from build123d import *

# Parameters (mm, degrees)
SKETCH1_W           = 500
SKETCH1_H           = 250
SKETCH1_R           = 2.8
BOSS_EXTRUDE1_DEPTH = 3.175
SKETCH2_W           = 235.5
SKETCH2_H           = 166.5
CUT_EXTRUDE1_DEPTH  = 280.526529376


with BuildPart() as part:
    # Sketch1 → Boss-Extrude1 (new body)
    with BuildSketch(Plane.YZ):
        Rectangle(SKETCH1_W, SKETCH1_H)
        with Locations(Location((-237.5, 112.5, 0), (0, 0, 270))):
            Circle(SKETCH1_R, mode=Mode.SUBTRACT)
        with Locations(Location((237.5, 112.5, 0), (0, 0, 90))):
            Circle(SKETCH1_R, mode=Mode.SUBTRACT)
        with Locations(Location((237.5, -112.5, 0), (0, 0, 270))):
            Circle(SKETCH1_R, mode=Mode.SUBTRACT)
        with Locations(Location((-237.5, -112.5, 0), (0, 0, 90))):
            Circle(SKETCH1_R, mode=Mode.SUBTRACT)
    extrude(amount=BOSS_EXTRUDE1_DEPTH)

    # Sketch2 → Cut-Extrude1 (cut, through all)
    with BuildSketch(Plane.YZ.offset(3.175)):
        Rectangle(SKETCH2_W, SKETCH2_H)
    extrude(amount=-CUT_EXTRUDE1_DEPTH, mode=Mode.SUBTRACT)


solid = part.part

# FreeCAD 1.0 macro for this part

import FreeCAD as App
import Part
import Sketcher
Q = App.Units.Quantity

doc = App.newDocument("Part")
body = doc.addObject("PartDesign::Body", "Body")

# Sketch on YZ plane
sketch1 = doc.addObject("Sketcher::SketchObject", "Sketch")
body.addObject(sketch1)
sketch1.AttachmentSupport = (doc.YZ_Plane, [""])
sketch1.MapMode = "FlatFace"
sketch1.addGeometry([
    Part.LineSegment(App.Vector(-250, 125, 0), App.Vector(-250, -125, 0)),  # 0
    Part.LineSegment(App.Vector(-250, -125, 0), App.Vector(250, -125, 0)),  # 1
    Part.LineSegment(App.Vector(250, -125, 0), App.Vector(250, 125, 0)),  # 2
    Part.LineSegment(App.Vector(250, 125, 0), App.Vector(-250, 125, 0)),  # 3
    Part.Circle(App.Vector(-237.5, -112.5, 0), App.Vector(0, 0, 1), 2.8),  # 4
    Part.Circle(App.Vector(237.5, -112.5, 0), App.Vector(0, 0, 1), 2.8),  # 5
    Part.Circle(App.Vector(-237.5, 112.5, 0), App.Vector(0, 0, 1), 2.8),  # 6
    Part.Circle(App.Vector(237.5, 112.5, 0), App.Vector(0, 0, 1), 2.8),  # 7
], False)
sketch1.addConstraint([
    Sketcher.Constraint("Coincident", 0, 2, 1, 1),
    Sketcher.Constraint("Coincident", 1, 2, 2, 1),
    Sketcher.Constraint("Coincident", 2, 2, 3, 1),
    Sketcher.Constraint("Coincident", 3, 2, 0, 1),
    Sketcher.Constraint("Vertical", 0),
    Sketcher.Constraint("Horizontal", 1),
    Sketcher.Constraint("Vertical", 2),
    Sketcher.Constraint("Horizontal", 3),
    Sketcher.Constraint("Equal", 4, 5),
    Sketcher.Constraint("Equal", 5, 6),
    Sketcher.Constraint("Equal", 6, 7),
    Sketcher.Constraint("Symmetric", 5, 3, 6, 3, -1, 1),
    Sketcher.Constraint("Symmetric", 4, 3, 7, 3, -1, 1),
    Sketcher.Constraint("Symmetric", 0, 2, 2, 2, -1, 1),
    Sketcher.Constraint("Symmetric", 4, 3, 5, 3, -2),
    Sketcher.Constraint("Diameter", 4, Q("5.6 mm")),
    Sketcher.Constraint("DistanceX", 1, 1, 1, 2, Q("500 mm")),
    Sketcher.Constraint("DistanceY", 0, 2, 0, 1, Q("250 mm")),
    Sketcher.Constraint("DistanceX", 4, 3, 5, 3, Q("475 mm")),
    Sketcher.Constraint("DistanceY", 4, 3, 6, 3, Q("225 mm")),
])
pad1 = doc.addObject("PartDesign::Pad", "Pad")
body.addObject(pad1)
pad1.Profile = sketch1
pad1.Length = 3.175

# Sketch on YZ plane
sketch2 = doc.addObject("Sketcher::SketchObject", "Sketch001")
body.addObject(sketch2)
sketch2.AttachmentSupport = (doc.YZ_Plane, [""])
sketch2.MapMode = "FlatFace"
sketch2.AttachmentOffset = App.Placement(App.Vector(0, 0, 3.175), App.Rotation())
sketch2.addGeometry([
    Part.LineSegment(App.Vector(-117.75, 83.25, 0), App.Vector(-117.75, -83.25, 0)),
    Part.LineSegment(App.Vector(-117.75, -83.25, 0), App.Vector(117.75, -83.25, 0)),
    Part.LineSegment(App.Vector(117.75, -83.25, 0), App.Vector(117.75, 83.25, 0)),
    Part.LineSegment(App.Vector(117.75, 83.25, 0), App.Vector(-117.75, 83.25, 0)),
], False)
sketch2.addConstraint([
    Sketcher.Constraint("Coincident", 0, 2, 1, 1),
    Sketcher.Constraint("Coincident", 1, 2, 2, 1),
    Sketcher.Constraint("Coincident", 2, 2, 3, 1),
    Sketcher.Constraint("Coincident", 3, 2, 0, 1),
    Sketcher.Constraint("Vertical", 0),
    Sketcher.Constraint("Horizontal", 1),
    Sketcher.Constraint("Vertical", 2),
    Sketcher.Constraint("Horizontal", 3),
    Sketcher.Constraint("Symmetric", 0, 2, 2, 2, -1, 1),
    Sketcher.Constraint("DistanceX", 1, 1, 1, 2, Q("235.5 mm")),
    Sketcher.Constraint("DistanceY", 0, 2, 0, 1, Q("166.5 mm")),
])
pocket1 = doc.addObject("PartDesign::Pocket", "Pocket")
body.addObject(pocket1)
pocket1.Profile = sketch2
pocket1.Type = "ThroughAll"

doc.recompute()
